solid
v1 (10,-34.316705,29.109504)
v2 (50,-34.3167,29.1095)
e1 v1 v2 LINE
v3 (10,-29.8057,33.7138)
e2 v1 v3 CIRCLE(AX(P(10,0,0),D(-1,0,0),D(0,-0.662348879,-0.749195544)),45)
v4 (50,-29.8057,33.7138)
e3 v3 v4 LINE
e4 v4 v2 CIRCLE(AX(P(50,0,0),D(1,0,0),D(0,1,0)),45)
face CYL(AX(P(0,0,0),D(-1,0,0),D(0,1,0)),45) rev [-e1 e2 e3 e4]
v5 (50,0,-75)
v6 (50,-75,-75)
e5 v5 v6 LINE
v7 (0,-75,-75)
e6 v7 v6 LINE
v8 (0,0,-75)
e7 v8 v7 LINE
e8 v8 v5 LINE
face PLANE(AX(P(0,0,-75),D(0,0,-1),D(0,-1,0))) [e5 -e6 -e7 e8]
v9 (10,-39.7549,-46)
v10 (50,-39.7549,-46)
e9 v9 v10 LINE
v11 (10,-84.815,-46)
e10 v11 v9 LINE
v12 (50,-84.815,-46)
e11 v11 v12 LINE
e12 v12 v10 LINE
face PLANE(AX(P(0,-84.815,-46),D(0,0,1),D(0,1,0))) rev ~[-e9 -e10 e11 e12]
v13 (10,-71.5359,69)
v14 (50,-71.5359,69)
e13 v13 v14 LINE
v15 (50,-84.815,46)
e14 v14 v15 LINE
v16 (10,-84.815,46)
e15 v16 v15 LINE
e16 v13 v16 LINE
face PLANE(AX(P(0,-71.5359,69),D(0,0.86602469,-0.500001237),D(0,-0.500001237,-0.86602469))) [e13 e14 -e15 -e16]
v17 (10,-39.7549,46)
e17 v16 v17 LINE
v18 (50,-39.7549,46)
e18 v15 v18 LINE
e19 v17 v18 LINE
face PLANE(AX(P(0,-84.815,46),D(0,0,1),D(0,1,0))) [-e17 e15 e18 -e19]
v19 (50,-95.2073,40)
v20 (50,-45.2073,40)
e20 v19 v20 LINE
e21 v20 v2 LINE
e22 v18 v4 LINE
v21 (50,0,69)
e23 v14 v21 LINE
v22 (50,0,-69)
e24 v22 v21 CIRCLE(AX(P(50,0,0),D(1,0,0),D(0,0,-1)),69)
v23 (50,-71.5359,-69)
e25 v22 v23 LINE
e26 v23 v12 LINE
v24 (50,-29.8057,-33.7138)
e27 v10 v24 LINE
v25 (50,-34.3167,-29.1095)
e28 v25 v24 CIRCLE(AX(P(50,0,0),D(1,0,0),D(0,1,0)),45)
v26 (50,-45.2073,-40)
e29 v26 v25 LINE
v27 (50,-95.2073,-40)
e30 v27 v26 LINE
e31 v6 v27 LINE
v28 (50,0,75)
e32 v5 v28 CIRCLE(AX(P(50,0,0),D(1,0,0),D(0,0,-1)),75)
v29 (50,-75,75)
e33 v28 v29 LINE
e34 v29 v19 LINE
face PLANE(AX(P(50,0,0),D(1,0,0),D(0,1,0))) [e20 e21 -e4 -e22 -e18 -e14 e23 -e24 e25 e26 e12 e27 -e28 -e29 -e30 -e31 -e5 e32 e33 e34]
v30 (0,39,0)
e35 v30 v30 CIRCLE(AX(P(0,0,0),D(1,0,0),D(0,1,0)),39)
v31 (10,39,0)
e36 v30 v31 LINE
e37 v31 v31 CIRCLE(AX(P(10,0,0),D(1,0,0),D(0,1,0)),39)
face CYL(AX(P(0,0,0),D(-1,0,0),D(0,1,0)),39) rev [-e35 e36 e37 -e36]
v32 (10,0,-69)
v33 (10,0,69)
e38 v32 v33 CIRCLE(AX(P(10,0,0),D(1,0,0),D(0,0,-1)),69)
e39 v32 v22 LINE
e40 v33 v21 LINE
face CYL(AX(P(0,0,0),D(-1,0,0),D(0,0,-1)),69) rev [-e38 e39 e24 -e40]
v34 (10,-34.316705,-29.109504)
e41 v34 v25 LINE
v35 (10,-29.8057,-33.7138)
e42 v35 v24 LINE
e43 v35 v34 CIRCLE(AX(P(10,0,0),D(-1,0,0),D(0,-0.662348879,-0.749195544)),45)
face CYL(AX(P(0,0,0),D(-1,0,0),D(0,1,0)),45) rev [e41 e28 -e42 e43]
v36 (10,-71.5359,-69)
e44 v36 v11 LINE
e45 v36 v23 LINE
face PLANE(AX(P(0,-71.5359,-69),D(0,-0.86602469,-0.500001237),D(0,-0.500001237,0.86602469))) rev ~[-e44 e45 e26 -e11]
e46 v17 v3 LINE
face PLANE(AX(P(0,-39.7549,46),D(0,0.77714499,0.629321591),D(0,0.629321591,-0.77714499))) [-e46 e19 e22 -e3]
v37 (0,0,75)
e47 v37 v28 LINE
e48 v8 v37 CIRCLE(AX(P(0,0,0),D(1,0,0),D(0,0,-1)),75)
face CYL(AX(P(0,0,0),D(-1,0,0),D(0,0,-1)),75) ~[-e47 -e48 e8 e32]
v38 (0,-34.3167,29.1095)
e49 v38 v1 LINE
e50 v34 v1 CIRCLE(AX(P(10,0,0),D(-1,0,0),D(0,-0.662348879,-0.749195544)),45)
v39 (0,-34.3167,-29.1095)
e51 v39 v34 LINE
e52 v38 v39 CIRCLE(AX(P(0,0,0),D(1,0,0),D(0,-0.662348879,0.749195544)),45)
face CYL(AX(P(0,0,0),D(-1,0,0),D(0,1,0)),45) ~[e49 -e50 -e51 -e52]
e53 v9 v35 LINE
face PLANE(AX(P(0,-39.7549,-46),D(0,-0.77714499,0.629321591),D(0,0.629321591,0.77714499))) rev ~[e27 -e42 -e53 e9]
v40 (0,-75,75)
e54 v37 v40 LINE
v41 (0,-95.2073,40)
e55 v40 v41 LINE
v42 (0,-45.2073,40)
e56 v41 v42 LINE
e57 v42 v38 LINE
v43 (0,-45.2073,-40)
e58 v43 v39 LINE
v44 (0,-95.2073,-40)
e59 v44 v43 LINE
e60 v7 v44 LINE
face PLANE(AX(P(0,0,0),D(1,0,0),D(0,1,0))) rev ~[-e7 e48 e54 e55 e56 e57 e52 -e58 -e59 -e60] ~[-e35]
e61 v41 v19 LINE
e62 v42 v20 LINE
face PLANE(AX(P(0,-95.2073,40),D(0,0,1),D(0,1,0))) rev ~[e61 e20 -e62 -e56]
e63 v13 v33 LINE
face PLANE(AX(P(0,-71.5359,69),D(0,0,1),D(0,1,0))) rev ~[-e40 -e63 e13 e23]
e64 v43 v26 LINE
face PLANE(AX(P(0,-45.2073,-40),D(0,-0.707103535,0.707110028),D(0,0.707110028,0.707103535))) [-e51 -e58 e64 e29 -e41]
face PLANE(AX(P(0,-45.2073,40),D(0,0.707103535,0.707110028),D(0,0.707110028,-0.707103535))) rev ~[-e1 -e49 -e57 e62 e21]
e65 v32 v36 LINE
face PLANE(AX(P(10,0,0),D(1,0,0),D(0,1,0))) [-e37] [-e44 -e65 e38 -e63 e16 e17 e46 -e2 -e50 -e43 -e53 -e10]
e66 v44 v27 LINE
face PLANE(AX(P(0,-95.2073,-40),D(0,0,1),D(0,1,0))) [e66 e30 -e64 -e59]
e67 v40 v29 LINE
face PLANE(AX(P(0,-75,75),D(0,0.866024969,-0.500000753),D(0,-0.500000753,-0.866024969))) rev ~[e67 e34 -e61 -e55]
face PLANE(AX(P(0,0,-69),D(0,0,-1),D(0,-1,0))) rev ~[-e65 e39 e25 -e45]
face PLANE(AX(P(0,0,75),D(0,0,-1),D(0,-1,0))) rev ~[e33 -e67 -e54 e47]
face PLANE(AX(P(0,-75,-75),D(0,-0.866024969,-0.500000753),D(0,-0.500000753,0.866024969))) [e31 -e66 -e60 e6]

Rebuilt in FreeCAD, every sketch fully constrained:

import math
import FreeCAD as App
import Part
import Sketcher
Q = App.Units.Quantity

doc = App.newDocument("Part")
params = doc.addObject("Spreadsheet::Sheet", "Params")
for row, (alias, value) in enumerate([
    ("sketch1_radius", "75 mm"),
    ("sketch1_radius2", "45 mm"),
    ("sketch1_width", "75 mm"),
    ("sketch1_width2", "50 mm"),
    ("sketch1_radius3", "69 mm"),
    ("pad1_length", "50 mm"),
    ("sketch2_radius", "45 mm"),
    ("sketch2_diameter", "78 mm"),
    ("sketch2_radius2", "69 mm"),
    ("sketch2_width", "45.06 mm"),
    ("pad2_length", "10 mm"),
], start=1):
    params.set(f"A{row}", alias)
    params.set(f"B{row}", "=" + value)
    params.setAlias(f"B{row}", alias)

body = doc.addObject("PartDesign::Body", "Body")

# Sketch on YZ plane
sketch1 = doc.addObject("Sketcher::SketchObject", "Sketch")
body.addObject(sketch1)
sketch1.AttachmentSupport = (doc.YZ_Plane, [""])
sketch1.MapMode = "FlatFace"
sketch1.addGeometry([
    Part.LineSegment(App.Vector(-75, -75, 0), App.Vector(0, -75, 0)),  # 0
    Part.ArcOfCircle(Part.Circle(App.Vector(0, 0, 0), App.Vector(0, 0, 1), 75), math.radians(-90), math.radians(90)),  # 1
    Part.LineSegment(App.Vector(0, 75, 0), App.Vector(-75, 75, 0)),  # 2
    Part.LineSegment(App.Vector(-75, 75, 0), App.Vector(-95, 40, 0)),  # 3
    Part.LineSegment(App.Vector(-95, 40, 0), App.Vector(-45, 40, 0)),  # 4
    Part.LineSegment(App.Vector(-45, 40, 0), App.Vector(-34, 29, 0)),  # 5
    Part.ArcOfCircle(Part.Circle(App.Vector(0, 0, 0), App.Vector(0, 0, 1), 45), math.radians(131.48), math.radians(139.69)),  # 6
    Part.LineSegment(App.Vector(-30, 34, 0), App.Vector(-40, 46, 0)),  # 7
    Part.LineSegment(App.Vector(-40, 46, 0), App.Vector(-85, 46, 0)),  # 8
    Part.LineSegment(App.Vector(-85, 46, 0), App.Vector(-72, 69, 0)),  # 9
    Part.LineSegment(App.Vector(-72, 69, 0), App.Vector(0, 69, 0)),  # 10
    Part.ArcOfCircle(Part.Circle(App.Vector(0, 0, 0), App.Vector(0, 0, 1), 69), math.radians(-90), math.radians(90)),  # 11
    Part.LineSegment(App.Vector(0, -69, 0), App.Vector(-72, -69, 0)),  # 12
    Part.LineSegment(App.Vector(-72, -69, 0), App.Vector(-85, -46, 0)),  # 13
    Part.LineSegment(App.Vector(-85, -46, 0), App.Vector(-40, -46, 0)),  # 14
    Part.LineSegment(App.Vector(-40, -46, 0), App.Vector(-30, -34, 0)),  # 15
    Part.ArcOfCircle(Part.Circle(App.Vector(0, 0, 0), App.Vector(0, 0, 1), 45), math.radians(-139.69), math.radians(-131.48)),  # 16
    Part.LineSegment(App.Vector(-34, -29, 0), App.Vector(-45, -40, 0)),  # 17
    Part.LineSegment(App.Vector(-45, -40, 0), App.Vector(-95, -40, 0)),  # 18
    Part.LineSegment(App.Vector(-95, -40, 0), App.Vector(-75, -75, 0)),  # 19
], False)
sketch1.addConstraint([
    Sketcher.Constraint("Tangent", 0, 2, 1, 1),
    Sketcher.Constraint("Tangent", 1, 2, 2, 1),
    Sketcher.Constraint("Coincident", 2, 2, 3, 1),
    Sketcher.Constraint("Coincident", 3, 2, 4, 1),
    Sketcher.Constraint("Coincident", 4, 2, 5, 1),
    Sketcher.Constraint("Coincident", 5, 2, 6, 2),
    Sketcher.Constraint("Coincident", 6, 1, 7, 1),
    Sketcher.Constraint("Coincident", 7, 2, 8, 1),
    Sketcher.Constraint("Coincident", 8, 2, 9, 1),
    Sketcher.Constraint("Coincident", 9, 2, 10, 1),
    Sketcher.Constraint("Tangent", 10, 2, 11, 2),
    Sketcher.Constraint("Tangent", 11, 1, 12, 1),
    Sketcher.Constraint("Coincident", 12, 2, 13, 1),
    Sketcher.Constraint("Coincident", 13, 2, 14, 1),
    Sketcher.Constraint("Coincident", 14, 2, 15, 1),
    Sketcher.Constraint("Coincident", 15, 2, 16, 2),
    Sketcher.Constraint("Coincident", 16, 1, 17, 1),
    Sketcher.Constraint("Coincident", 17, 2, 18, 1),
    Sketcher.Constraint("Coincident", 18, 2, 19, 1),
    Sketcher.Constraint("Coincident", 19, 2, 0, 1),
    Sketcher.Constraint("Horizontal", 0),
    Sketcher.Constraint("Horizontal", 2),
    Sketcher.Constraint("Horizontal", 4),
    Sketcher.Constraint("Horizontal", 8),
    Sketcher.Constraint("Horizontal", 10),
    Sketcher.Constraint("Horizontal", 12),
    Sketcher.Constraint("Horizontal", 14),
    Sketcher.Constraint("Horizontal", 18),
    Sketcher.Constraint("Coincident", 1, 3, -1, 1),
    Sketcher.Constraint("Coincident", 6, 3, -1, 1),
    Sketcher.Constraint("Coincident", 11, 3, -1, 1),
    Sketcher.Constraint("Coincident", 16, 3, -1, 1),
    Sketcher.Constraint("Equal", 6, 16),
    Sketcher.Constraint("Symmetric", 8, 2, 13, 2, -1),
    Sketcher.Constraint("Symmetric", 4, 2, 17, 2, -1),
    Sketcher.Constraint("Parallel", 3, 9),
    Sketcher.Constraint("Perpendicular", 5, 17),
    Sketcher.Constraint("Parallel", 13, 19),
    Sketcher.Constraint("Vertical", 9, 2, 12, 2),
    Sketcher.Constraint("Vertical", 7, 2, 14, 2),
    Sketcher.Constraint("Vertical", 6, 1, 15, 2),
    Sketcher.Constraint("Vertical", 5, 2, 16, 1),
    Sketcher.Constraint("Vertical", 3, 2, 18, 2),
    Sketcher.Constraint("Radius", 1, 75.0),
    Sketcher.Constraint("Radius", 6, 45.0),
    Sketcher.Constraint("DistanceX", 0, 1, 0, 2, 75.0),
    Sketcher.Constraint("DistanceX", 4, 1, 4, 2, 50.0),
    Sketcher.Constraint("Angle", 3, Q("-120 deg")),
    Sketcher.Constraint("DistanceY", -1, 1, 3, 2, 40.0),
    Sketcher.Constraint("Radius", 11, 69.0),
    Sketcher.Constraint("DistanceY", 4, 2, 7, 2, 6.0),
    Sketcher.Constraint("Angle", 7, Q("129 deg")),
    Sketcher.Constraint("Distance", 7, 15.8094),
    Sketcher.Constraint("DistanceX", 8, 2, 8, 1, 45.06),
])
sketch1.setExpression("Constraints[43]", "Params.sketch1_radius")
sketch1.setExpression("Constraints[44]", "Params.sketch1_radius2")
sketch1.setExpression("Constraints[45]", "Params.sketch1_width")
sketch1.setExpression("Constraints[46]", "Params.sketch1_width2")
sketch1.setExpression("Constraints[49]", "Params.sketch1_radius3")
pad1 = doc.addObject("PartDesign::Pad", "Pad")
body.addObject(pad1)
pad1.Profile = sketch1
pad1.setExpression("Length", "Params.pad1_length")

# Sketch on YZ plane
sketch2 = doc.addObject("Sketcher::SketchObject", "Sketch001")
body.addObject(sketch2)
sketch2.AttachmentSupport = (doc.YZ_Plane, [""])
sketch2.MapMode = "FlatFace"
sketch2.addGeometry([
    Part.LineSegment(App.Vector(-30, -34, 0), App.Vector(-40, -46, 0)),  # 0
    Part.LineSegment(App.Vector(-40, -46, 0), App.Vector(-85, -46, 0)),  # 1
    Part.LineSegment(App.Vector(-85, -46, 0), App.Vector(-72, -69, 0)),  # 2
    Part.LineSegment(App.Vector(-72, -69, 0), App.Vector(0, -69, 0)),  # 3
    Part.ArcOfCircle(Part.Circle(App.Vector(0, 0, 0), App.Vector(0, 0, 1), 69), math.radians(-90), math.radians(90)),  # 4
    Part.LineSegment(App.Vector(0, 69, 0), App.Vector(-72, 69, 0)),  # 5
    Part.LineSegment(App.Vector(-72, 69, 0), App.Vector(-85, 46, 0)),  # 6
    Part.LineSegment(App.Vector(-85, 46, 0), App.Vector(-40, 46, 0)),  # 7
    Part.LineSegment(App.Vector(-40, 46, 0), App.Vector(-30, 34, 0)),  # 8
    Part.ArcOfCircle(Part.Circle(App.Vector(0, 0, 0), App.Vector(0, 0, 1), 45), math.radians(131), math.radians(229)),  # 9
    Part.Circle(App.Vector(0, 0, 0), App.Vector(0, 0, 1), 39),  # 10
], False)
sketch2.addConstraint([
    Sketcher.Constraint("Coincident", 0, 2, 1, 1),
    Sketcher.Constraint("Coincident", 1, 2, 2, 1),
    Sketcher.Constraint("Coincident", 2, 2, 3, 1),
    Sketcher.Constraint("Tangent", 3, 2, 4, 1),
    Sketcher.Constraint("Tangent", 4, 2, 5, 1),
    Sketcher.Constraint("Coincident", 5, 2, 6, 1),
    Sketcher.Constraint("Coincident", 6, 2, 7, 1),
    Sketcher.Constraint("Coincident", 7, 2, 8, 1),
    Sketcher.Constraint("Coincident", 8, 2, 9, 1),
    Sketcher.Constraint("Coincident", 9, 2, 0, 1),
    Sketcher.Constraint("Horizontal", 1),
    Sketcher.Constraint("Horizontal", 3),
    Sketcher.Constraint("Horizontal", 5),
    Sketcher.Constraint("Horizontal", 7),
    Sketcher.Constraint("Coincident", 4, 3, -1, 1),
    Sketcher.Constraint("Coincident", 9, 3, -1, 1),
    Sketcher.Constraint("Coincident", 10, 3, -1, 1),
    Sketcher.Constraint("Symmetric", 1, 2, 6, 2, -1),
    Sketcher.Constraint("Vertical", 2, 2, 5, 2),
    Sketcher.Constraint("Vertical", 0, 2, 7, 2),
    Sketcher.Constraint("Vertical", 8, 2, 9, 2),
    Sketcher.Constraint("Radius", 9, 45.0),
    Sketcher.Constraint("Angle", 2, Q("-60 deg")),
    Sketcher.Constraint("Diameter", 10, 78.0),
    Sketcher.Constraint("Radius", 4, 69.0),
    Sketcher.Constraint("Angle", 0, Q("-129 deg")),
    Sketcher.Constraint("DistanceY", 0, 2, -1, 1, 46.0),
    Sketcher.Constraint("Distance", 0, 15.8094),
    Sketcher.Constraint("DistanceX", 1, 2, 1, 1, 45.06),
])
sketch2.setExpression("Constraints[21]", "Params.sketch2_radius")
sketch2.setExpression("Constraints[23]", "Params.sketch2_diameter")
sketch2.setExpression("Constraints[24]", "Params.sketch2_radius2")
sketch2.setExpression("Constraints[28]", "Params.sketch2_width")
pad2 = doc.addObject("PartDesign::Pad", "Pad001")
body.addObject(pad2)
pad2.Profile = sketch2
pad2.setExpression("Length", "Params.pad2_length")

doc.recompute()
